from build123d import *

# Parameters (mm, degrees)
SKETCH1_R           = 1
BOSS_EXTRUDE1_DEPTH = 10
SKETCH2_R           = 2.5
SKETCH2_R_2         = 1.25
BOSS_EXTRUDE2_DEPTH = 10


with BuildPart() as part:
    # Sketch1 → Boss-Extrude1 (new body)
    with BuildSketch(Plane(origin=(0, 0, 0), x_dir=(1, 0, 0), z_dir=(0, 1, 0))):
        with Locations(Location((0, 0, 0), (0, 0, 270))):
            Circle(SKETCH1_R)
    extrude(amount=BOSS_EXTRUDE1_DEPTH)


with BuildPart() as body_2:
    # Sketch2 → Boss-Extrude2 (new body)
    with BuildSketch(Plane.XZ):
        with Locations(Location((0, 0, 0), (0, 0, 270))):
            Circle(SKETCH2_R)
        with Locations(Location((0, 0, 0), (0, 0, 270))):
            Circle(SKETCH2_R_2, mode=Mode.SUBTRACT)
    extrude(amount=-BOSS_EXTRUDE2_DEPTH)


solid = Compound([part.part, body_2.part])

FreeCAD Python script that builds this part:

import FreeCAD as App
import Part
import Sketcher

V = App.Vector

doc = App.newDocument("Part")
body = doc.addObject("PartDesign::Body", "Body")

sketch1 = body.newObject("Sketcher::SketchObject", "Sketch")
sketch1.AttachmentSupport = (doc.getObject("XZ_Plane"), [""])
sketch1.MapMode = "FlatFace"
sketch1.addGeometry(Part.Circle(V(0, 0, 0), V(0, 0, 1), 1), False)
sketch1.addConstraint([
    Sketcher.Constraint("Coincident", 0, 3, -1, 1),
    Sketcher.Constraint("Diameter", 0, 2.0),
])
pad1 = body.newObject("PartDesign::Pad", "Pad")
pad1.Profile = sketch1
pad1.Length = 10
pad1.Reversed = True
body2 = doc.addObject("PartDesign::Body", "Body001")

sketch2 = body2.newObject("Sketcher::SketchObject", "Sketch001")
sketch2.AttachmentSupport = (doc.getObject("XZ_Plane001"), [""])
sketch2.MapMode = "FlatFace"
sketch2.addGeometry([
    Part.Circle(V(0, 0, 0), V(0, 0, 1), 2.5),
    Part.Circle(V(0, 0, 0), V(0, 0, 1), 1.2),
], False)
sketch2.addConstraint([
    Sketcher.Constraint("Coincident", 0, 3, -1, 1),
    Sketcher.Constraint("Coincident", 1, 3, -1, 1),
    Sketcher.Constraint("Diameter", 0, 5.0),
    Sketcher.Constraint("Diameter", 1, 2.5),
])
pad2 = body2.newObject("PartDesign::Pad", "Pad001")
pad2.Profile = sketch2
pad2.Length = 10
pad2.Reversed = True

doc.recompute()
